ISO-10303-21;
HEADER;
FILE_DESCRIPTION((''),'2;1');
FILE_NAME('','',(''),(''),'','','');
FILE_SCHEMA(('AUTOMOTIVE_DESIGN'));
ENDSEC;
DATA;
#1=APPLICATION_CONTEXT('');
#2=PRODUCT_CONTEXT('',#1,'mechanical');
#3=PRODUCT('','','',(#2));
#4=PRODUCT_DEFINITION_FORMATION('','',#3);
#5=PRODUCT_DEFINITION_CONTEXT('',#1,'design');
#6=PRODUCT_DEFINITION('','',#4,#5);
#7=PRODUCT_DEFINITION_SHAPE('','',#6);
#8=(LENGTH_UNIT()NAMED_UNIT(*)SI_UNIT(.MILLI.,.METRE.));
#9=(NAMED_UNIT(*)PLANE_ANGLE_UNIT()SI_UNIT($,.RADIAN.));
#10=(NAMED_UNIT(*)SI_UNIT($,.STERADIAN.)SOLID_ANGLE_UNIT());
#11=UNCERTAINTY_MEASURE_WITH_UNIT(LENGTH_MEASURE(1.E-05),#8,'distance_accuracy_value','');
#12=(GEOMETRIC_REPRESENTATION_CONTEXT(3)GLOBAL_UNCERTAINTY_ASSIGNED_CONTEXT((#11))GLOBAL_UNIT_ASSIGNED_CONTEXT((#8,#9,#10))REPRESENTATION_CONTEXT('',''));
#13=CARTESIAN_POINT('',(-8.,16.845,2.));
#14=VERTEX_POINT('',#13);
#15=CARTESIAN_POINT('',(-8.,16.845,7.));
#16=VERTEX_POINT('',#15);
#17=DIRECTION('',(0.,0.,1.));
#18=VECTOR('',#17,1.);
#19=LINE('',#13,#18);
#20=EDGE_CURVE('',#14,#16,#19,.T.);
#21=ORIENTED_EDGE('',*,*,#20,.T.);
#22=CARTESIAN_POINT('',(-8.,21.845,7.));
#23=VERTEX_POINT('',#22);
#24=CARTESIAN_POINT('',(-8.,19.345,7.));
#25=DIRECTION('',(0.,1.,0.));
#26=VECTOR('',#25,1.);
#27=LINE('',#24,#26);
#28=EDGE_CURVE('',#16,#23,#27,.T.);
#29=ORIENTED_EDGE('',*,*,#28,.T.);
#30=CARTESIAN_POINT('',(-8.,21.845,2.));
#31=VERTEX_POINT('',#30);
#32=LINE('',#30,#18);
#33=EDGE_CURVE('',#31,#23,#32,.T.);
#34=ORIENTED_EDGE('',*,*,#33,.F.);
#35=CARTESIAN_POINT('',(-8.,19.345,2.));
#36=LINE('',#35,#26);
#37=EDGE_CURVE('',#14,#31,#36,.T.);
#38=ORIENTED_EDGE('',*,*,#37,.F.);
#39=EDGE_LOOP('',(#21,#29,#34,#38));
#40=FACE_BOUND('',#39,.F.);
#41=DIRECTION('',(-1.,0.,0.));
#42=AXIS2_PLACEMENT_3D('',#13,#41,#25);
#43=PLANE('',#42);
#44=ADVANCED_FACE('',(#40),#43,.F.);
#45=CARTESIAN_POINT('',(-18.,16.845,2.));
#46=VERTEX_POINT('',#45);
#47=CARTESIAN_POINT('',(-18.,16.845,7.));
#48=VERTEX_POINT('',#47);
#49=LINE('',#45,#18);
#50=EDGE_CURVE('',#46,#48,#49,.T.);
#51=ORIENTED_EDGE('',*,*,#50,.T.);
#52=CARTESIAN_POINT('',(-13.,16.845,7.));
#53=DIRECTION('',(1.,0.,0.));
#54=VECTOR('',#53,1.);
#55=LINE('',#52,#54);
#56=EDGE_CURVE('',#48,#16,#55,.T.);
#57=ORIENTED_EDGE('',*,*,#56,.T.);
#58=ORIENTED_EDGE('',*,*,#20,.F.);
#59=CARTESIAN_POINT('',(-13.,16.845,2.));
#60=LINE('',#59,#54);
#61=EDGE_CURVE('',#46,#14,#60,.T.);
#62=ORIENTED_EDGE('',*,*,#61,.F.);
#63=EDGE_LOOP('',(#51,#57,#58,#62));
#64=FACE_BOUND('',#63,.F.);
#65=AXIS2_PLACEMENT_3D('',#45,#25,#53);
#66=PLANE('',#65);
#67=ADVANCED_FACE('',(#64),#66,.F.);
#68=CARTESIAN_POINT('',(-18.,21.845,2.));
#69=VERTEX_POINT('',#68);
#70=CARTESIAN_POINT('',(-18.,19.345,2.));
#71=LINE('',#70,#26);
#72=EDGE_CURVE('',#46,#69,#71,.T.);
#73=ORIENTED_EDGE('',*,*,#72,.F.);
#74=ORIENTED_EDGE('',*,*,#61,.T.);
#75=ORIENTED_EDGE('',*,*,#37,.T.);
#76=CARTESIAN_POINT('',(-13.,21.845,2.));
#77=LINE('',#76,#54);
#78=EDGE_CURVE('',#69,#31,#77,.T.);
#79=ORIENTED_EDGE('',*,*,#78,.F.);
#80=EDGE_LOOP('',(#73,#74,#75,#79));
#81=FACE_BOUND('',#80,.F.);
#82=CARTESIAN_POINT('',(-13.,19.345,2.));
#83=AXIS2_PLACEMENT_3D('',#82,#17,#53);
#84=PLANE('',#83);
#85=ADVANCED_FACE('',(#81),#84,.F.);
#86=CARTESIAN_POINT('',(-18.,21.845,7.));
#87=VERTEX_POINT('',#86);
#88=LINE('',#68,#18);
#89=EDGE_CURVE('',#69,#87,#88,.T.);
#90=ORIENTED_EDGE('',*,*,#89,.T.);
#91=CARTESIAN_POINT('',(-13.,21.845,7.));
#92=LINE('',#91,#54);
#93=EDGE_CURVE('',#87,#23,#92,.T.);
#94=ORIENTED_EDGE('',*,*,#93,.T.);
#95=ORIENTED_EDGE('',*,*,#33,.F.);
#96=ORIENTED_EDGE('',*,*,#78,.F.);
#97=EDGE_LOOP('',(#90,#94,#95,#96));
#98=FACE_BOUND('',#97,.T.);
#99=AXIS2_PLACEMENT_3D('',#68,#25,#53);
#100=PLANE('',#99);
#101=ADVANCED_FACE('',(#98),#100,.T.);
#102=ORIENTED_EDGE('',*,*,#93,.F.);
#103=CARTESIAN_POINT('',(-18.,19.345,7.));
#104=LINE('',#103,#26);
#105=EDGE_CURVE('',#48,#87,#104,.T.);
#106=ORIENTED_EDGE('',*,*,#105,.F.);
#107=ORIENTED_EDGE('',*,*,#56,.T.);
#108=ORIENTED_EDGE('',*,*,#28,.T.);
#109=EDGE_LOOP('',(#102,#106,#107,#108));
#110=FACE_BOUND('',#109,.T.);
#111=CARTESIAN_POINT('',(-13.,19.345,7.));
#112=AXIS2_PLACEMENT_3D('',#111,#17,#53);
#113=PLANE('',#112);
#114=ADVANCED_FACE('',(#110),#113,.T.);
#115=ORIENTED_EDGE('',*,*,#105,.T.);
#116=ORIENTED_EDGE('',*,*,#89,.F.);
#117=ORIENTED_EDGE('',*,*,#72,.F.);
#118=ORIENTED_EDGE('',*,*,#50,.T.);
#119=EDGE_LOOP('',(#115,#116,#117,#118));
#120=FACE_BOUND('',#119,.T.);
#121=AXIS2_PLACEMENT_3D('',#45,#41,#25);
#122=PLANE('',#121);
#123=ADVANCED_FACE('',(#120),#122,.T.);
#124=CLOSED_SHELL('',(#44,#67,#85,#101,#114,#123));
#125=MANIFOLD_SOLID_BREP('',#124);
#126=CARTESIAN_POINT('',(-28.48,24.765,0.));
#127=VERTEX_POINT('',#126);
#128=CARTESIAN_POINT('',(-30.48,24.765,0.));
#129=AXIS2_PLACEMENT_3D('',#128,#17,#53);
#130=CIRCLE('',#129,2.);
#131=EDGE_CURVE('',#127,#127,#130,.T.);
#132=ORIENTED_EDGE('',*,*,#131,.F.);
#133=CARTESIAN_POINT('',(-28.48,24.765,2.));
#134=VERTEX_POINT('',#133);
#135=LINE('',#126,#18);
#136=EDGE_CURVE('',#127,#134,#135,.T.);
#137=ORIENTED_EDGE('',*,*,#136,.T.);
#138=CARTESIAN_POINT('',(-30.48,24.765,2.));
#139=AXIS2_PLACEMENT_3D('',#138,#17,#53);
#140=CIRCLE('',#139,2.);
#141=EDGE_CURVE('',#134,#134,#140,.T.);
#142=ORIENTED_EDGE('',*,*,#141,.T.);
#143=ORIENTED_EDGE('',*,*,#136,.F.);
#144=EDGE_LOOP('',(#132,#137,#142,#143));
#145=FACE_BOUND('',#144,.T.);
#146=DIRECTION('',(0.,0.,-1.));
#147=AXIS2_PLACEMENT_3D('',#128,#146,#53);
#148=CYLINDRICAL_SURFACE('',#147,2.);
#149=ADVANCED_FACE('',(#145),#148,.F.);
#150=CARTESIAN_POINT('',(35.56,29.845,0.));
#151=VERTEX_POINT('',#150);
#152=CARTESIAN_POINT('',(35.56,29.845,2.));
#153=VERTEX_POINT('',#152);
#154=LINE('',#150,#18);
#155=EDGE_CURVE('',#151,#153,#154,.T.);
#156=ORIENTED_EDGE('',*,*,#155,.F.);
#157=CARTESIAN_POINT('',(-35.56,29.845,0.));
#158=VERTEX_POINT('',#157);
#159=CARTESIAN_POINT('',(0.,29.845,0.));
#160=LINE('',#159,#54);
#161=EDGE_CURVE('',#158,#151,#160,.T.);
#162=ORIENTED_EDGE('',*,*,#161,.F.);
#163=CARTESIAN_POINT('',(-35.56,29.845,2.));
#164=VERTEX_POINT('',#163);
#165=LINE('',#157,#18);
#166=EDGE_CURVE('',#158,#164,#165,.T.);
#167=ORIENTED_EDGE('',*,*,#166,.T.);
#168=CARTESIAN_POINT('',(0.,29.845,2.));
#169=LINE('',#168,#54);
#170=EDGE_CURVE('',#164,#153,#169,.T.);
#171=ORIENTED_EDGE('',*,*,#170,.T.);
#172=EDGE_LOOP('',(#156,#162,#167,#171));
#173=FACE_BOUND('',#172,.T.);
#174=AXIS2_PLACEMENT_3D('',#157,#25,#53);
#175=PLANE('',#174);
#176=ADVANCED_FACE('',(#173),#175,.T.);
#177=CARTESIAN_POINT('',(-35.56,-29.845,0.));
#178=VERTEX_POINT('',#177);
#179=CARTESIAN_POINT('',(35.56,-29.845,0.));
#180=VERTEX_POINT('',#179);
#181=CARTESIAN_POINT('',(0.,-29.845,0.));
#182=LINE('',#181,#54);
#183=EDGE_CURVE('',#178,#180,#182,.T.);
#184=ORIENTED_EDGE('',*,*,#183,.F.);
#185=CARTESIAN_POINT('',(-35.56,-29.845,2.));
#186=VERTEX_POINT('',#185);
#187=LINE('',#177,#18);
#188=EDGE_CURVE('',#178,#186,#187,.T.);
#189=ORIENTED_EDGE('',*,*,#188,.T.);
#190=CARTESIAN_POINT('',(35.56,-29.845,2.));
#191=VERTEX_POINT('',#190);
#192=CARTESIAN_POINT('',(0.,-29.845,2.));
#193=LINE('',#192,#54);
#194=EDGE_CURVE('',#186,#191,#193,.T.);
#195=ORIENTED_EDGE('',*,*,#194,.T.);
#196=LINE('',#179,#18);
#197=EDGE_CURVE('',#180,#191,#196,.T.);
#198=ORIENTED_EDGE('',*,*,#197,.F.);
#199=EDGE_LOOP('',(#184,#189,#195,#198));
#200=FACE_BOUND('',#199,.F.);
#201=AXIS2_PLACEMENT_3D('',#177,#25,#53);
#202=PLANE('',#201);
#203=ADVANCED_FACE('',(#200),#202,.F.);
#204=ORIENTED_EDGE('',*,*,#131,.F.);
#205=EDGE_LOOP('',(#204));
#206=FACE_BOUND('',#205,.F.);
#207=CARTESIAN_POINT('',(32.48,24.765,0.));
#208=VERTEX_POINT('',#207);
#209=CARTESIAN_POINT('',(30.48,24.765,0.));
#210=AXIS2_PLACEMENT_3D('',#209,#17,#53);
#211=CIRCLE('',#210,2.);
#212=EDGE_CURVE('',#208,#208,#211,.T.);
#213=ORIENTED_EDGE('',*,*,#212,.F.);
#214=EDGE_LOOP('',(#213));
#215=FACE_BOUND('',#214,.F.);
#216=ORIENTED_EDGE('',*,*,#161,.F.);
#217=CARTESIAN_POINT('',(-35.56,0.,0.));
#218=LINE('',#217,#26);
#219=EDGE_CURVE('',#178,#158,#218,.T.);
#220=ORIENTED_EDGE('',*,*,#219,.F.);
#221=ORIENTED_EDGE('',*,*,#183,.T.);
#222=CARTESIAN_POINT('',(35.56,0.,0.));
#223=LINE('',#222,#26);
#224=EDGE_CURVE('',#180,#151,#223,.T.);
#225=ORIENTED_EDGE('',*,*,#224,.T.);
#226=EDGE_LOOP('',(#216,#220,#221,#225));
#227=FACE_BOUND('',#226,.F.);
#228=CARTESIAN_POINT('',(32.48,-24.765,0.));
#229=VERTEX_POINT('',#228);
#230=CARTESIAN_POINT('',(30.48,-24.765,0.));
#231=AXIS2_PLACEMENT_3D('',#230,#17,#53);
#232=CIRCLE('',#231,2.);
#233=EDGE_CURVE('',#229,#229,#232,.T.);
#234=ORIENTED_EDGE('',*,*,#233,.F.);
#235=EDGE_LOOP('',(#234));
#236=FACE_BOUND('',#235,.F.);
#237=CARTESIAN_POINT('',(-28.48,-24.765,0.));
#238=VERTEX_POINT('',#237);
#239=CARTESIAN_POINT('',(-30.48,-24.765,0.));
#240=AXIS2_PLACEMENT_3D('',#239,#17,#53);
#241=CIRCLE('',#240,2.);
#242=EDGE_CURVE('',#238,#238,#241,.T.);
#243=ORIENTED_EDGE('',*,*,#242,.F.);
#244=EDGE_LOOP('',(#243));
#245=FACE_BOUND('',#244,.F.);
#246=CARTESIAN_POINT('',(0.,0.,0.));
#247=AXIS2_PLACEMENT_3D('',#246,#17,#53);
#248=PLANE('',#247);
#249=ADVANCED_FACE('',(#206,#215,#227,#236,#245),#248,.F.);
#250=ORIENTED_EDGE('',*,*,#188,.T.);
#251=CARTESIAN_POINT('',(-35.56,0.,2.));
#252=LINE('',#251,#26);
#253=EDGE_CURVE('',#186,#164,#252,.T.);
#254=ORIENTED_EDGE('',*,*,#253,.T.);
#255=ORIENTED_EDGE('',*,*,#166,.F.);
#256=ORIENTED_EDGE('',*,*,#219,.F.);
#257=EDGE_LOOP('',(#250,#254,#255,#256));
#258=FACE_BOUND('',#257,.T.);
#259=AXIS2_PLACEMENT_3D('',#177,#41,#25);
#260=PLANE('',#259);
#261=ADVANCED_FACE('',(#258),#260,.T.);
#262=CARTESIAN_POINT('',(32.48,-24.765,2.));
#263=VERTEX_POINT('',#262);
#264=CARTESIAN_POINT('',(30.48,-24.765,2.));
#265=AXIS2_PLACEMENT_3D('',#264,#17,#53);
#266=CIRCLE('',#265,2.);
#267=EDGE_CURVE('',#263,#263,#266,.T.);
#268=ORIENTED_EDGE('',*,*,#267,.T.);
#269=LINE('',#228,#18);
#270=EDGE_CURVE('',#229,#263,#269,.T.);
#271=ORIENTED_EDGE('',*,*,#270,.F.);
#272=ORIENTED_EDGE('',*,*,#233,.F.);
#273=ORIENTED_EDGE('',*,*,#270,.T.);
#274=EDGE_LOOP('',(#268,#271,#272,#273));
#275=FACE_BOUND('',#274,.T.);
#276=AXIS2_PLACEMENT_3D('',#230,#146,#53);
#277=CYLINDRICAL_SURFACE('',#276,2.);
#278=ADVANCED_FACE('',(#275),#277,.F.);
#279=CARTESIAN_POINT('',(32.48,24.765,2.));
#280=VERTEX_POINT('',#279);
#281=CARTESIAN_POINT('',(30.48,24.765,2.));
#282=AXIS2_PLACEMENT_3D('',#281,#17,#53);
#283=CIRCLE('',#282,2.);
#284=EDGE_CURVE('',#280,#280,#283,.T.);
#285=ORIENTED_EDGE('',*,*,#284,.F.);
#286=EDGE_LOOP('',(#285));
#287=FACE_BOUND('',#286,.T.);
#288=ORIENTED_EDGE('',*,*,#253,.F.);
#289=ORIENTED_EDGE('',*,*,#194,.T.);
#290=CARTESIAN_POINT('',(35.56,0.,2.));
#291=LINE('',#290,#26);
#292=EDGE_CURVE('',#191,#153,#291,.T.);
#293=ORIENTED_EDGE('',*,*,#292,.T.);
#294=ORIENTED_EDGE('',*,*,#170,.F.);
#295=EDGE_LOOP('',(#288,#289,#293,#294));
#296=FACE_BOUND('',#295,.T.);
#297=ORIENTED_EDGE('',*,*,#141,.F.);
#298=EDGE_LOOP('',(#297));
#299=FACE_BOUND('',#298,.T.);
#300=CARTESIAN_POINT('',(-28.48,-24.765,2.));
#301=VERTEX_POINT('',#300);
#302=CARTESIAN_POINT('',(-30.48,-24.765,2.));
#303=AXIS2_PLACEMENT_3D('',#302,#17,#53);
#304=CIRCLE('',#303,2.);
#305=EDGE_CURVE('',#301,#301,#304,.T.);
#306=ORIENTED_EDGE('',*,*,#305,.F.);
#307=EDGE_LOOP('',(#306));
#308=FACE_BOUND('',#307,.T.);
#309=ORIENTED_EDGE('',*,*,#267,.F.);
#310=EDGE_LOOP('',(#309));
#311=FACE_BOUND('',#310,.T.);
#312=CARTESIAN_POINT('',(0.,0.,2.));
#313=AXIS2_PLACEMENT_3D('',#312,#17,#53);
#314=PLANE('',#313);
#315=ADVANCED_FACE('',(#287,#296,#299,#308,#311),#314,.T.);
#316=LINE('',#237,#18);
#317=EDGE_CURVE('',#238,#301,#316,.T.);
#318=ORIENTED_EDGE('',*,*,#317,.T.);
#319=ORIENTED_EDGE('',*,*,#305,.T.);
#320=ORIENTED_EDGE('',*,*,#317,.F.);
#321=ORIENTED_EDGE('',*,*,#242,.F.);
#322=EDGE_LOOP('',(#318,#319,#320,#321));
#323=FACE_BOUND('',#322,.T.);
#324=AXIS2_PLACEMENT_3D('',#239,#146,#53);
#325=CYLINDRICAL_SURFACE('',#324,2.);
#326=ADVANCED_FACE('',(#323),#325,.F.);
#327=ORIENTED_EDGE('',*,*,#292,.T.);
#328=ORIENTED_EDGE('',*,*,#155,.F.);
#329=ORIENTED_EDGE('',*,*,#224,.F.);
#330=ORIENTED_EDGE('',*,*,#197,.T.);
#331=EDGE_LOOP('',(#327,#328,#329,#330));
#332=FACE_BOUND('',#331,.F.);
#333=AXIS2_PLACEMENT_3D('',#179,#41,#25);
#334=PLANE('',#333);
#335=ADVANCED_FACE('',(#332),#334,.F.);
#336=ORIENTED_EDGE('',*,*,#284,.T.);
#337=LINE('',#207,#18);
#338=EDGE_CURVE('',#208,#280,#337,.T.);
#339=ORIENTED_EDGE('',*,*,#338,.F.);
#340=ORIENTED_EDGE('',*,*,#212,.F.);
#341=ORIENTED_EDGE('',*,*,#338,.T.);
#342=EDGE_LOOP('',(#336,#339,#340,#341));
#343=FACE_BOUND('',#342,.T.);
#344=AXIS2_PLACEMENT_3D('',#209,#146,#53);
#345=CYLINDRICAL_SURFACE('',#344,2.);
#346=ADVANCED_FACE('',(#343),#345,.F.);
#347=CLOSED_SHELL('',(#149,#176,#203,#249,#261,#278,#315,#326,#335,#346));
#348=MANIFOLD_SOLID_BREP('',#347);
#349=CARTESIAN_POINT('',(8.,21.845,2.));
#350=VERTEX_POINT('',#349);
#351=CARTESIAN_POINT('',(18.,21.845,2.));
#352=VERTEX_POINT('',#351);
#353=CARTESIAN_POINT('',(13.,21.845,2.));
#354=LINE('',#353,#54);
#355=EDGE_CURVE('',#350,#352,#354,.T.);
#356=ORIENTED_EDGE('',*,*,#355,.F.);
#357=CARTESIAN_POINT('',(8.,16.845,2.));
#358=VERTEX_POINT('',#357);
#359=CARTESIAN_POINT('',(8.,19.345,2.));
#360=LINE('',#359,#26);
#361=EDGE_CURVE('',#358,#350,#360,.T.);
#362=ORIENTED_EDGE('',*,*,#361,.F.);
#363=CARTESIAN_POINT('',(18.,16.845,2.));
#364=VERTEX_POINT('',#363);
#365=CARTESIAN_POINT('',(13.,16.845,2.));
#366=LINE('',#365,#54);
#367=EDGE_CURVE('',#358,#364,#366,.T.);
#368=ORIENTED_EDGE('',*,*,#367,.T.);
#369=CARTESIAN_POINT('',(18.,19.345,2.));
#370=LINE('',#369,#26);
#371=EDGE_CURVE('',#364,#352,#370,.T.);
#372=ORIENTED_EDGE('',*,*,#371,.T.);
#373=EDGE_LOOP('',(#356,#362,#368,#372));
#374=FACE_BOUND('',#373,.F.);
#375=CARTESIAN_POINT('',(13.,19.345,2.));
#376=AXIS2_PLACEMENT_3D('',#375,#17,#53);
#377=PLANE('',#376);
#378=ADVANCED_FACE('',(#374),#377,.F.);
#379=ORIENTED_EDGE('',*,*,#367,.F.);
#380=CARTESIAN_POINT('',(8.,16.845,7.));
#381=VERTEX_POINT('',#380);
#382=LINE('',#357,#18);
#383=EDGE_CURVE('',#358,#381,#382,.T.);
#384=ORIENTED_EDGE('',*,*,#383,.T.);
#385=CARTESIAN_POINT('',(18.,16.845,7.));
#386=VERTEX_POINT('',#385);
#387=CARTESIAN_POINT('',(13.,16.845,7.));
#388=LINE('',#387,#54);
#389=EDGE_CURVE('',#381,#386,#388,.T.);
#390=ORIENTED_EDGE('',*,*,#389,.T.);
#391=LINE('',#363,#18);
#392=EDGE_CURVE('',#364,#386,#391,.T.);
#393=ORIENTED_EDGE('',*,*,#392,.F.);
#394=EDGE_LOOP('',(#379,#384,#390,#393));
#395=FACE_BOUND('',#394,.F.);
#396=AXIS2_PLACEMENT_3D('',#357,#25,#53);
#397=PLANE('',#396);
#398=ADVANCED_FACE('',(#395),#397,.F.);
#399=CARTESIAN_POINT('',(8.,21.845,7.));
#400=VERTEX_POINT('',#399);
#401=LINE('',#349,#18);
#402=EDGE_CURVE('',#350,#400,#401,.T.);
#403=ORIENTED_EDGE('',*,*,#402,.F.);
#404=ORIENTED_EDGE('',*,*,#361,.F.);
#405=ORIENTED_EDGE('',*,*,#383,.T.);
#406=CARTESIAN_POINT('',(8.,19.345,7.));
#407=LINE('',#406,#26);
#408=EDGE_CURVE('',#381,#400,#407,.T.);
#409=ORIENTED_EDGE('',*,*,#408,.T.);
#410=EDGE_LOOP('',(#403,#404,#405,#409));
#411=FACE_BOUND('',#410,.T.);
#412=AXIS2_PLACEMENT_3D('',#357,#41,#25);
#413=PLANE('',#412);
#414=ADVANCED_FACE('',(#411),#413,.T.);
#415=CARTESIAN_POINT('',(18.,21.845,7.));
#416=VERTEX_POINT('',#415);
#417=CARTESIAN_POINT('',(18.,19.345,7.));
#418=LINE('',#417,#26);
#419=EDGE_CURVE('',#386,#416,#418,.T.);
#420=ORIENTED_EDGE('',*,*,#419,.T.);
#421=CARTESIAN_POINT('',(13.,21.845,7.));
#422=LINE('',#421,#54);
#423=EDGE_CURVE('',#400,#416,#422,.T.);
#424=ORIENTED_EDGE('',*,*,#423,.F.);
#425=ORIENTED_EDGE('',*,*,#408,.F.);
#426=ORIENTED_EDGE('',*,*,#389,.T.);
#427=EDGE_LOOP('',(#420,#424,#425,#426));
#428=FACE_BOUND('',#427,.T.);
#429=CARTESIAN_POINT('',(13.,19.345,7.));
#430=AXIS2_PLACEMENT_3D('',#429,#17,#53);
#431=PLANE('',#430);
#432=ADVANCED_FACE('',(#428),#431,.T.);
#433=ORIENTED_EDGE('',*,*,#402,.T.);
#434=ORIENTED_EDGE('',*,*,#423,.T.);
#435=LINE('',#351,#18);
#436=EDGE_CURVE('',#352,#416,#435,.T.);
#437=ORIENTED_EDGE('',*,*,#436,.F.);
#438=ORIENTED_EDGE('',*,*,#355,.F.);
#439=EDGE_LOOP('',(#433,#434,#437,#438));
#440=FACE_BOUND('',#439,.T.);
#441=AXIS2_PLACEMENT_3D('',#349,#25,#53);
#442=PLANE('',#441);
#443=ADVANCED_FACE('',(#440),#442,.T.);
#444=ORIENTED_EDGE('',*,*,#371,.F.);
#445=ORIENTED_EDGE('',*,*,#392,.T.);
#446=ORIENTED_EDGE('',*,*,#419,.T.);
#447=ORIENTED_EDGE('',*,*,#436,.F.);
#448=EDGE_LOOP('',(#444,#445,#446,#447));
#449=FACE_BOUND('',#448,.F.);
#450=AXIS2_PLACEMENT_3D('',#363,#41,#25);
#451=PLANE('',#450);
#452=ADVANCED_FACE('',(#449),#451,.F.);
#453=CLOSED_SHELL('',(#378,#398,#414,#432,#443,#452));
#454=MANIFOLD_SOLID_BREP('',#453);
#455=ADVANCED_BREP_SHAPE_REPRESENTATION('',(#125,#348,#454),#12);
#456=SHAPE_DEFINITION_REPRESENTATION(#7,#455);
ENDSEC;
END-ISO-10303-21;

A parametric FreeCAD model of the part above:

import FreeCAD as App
import Part
import Sketcher


def add_polygon(sketch, points):
    """Adds a closed chain of lines whose ends are joined by coincident constraints."""
    first, n = sketch.GeometryCount, len(points)
    for a, b in zip(points, points[1:] + points[:1]):
        sketch.addGeometry(Part.LineSegment(App.Vector(*a, 0), App.Vector(*b, 0)), False)
    for i in range(n):
        sketch.addConstraint(Sketcher.Constraint("Coincident", first + i, 2, first + (i + 1) % n, 1))

doc = App.newDocument("Part")
body = doc.addObject("PartDesign::Body", "Body")

# Sketch on XY plane
sketch1 = doc.addObject("Sketcher::SketchObject", "Sketch")
body.addObject(sketch1)
sketch1.AttachmentSupport = (doc.XY_Plane, [""])
sketch1.MapMode = "FlatFace"
add_polygon(sketch1, [(-35.56, 29.845), (-35.56, -29.845), (35.56, -29.845), (35.56, 29.845)])  # lines 0-3
sketch1.addGeometry(Part.Circle(App.Vector(-30.48, -24.765, 0), App.Vector(0, 0, 1), 2), False)  # 4
sketch1.addGeometry(Part.Circle(App.Vector(30.48, -24.765, 0), App.Vector(0, 0, 1), 2), False)  # 5
sketch1.addGeometry(Part.Circle(App.Vector(-30.48, 24.765, 0), App.Vector(0, 0, 1), 2), False)  # 6
sketch1.addGeometry(Part.Circle(App.Vector(30.48, 24.765, 0), App.Vector(0, 0, 1), 2), False)  # 7
sketch1.addConstraint([
    Sketcher.Constraint("Vertical", 0),
    Sketcher.Constraint("Horizontal", 1),
    Sketcher.Constraint("Vertical", 2),
    Sketcher.Constraint("Horizontal", 3),
    Sketcher.Constraint("Equal", 4, 5),
    Sketcher.Constraint("Equal", 5, 6),
    Sketcher.Constraint("Equal", 6, 7),
    Sketcher.Constraint("Symmetric", 5, 3, 6, 3, -1, 1),
    Sketcher.Constraint("Symmetric", 4, 3, 7, 3, -1, 1),
    Sketcher.Constraint("Symmetric", 0, 2, 2, 2, -1, 1),
    Sketcher.Constraint("Symmetric", 4, 3, 5, 3, -2),
    Sketcher.Constraint("Diameter", 4, 4.0),
    Sketcher.Constraint("DistanceX", 1, 1, 1, 2, 71.12),
    Sketcher.Constraint("DistanceY", 0, 2, 0, 1, 59.69),
    Sketcher.Constraint("DistanceX", 4, 3, -1, 1, 30.48),
    Sketcher.Constraint("DistanceY", 4, 3, 6, 3, 49.53),
])
pad1 = doc.addObject("PartDesign::Pad", "Pad")
body.addObject(pad1)
pad1.Profile = sketch1
pad1.Length = 2
body2 = doc.addObject("PartDesign::Body", "Body001")
body2.AllowCompound = True

# Sketch on XY plane
sketch2 = doc.addObject("Sketcher::SketchObject", "Sketch001")
body2.addObject(sketch2)
sketch2.AttachmentSupport = (doc.getObject("XY_Plane001"), [""])
sketch2.MapMode = "FlatFace"
sketch2.AttachmentOffset = App.Placement(App.Vector(0, 0, 2), App.Rotation())
add_polygon(sketch2, [(-18, 21.845), (-18, 16.845), (-8, 16.845), (-8, 21.845)])  # lines 0-3
add_polygon(sketch2, [(8, 21.845), (8, 16.845), (18, 16.845), (18, 21.845)])  # lines 4-7
sketch2.addConstraint([
    Sketcher.Constraint("Vertical", 0),
    Sketcher.Constraint("Horizontal", 1),
    Sketcher.Constraint("Vertical", 2),
    Sketcher.Constraint("Horizontal", 3),
    Sketcher.Constraint("Vertical", 4),
    Sketcher.Constraint("Horizontal", 5),
    Sketcher.Constraint("Vertical", 6),
    Sketcher.Constraint("Horizontal", 7),
    Sketcher.Constraint("Symmetric", 1, 2, 4, 2, -2),
    Sketcher.Constraint("Symmetric", 3, 2, 6, 2, -2),
    Sketcher.Constraint("DistanceX", 1, 1, 1, 2, 10.0),
    Sketcher.Constraint("DistanceY", 0, 2, 0, 1, 5.0),
    Sketcher.Constraint("DistanceX", 0, 2, -1, 1, 18.0),
    Sketcher.Constraint("DistanceY", -1, 1, 0, 2, 16.845),
])
pad2 = doc.addObject("PartDesign::Pad", "Pad001")
body2.addObject(pad2)
pad2.Profile = sketch2
pad2.Length = 5

doc.recompute()
